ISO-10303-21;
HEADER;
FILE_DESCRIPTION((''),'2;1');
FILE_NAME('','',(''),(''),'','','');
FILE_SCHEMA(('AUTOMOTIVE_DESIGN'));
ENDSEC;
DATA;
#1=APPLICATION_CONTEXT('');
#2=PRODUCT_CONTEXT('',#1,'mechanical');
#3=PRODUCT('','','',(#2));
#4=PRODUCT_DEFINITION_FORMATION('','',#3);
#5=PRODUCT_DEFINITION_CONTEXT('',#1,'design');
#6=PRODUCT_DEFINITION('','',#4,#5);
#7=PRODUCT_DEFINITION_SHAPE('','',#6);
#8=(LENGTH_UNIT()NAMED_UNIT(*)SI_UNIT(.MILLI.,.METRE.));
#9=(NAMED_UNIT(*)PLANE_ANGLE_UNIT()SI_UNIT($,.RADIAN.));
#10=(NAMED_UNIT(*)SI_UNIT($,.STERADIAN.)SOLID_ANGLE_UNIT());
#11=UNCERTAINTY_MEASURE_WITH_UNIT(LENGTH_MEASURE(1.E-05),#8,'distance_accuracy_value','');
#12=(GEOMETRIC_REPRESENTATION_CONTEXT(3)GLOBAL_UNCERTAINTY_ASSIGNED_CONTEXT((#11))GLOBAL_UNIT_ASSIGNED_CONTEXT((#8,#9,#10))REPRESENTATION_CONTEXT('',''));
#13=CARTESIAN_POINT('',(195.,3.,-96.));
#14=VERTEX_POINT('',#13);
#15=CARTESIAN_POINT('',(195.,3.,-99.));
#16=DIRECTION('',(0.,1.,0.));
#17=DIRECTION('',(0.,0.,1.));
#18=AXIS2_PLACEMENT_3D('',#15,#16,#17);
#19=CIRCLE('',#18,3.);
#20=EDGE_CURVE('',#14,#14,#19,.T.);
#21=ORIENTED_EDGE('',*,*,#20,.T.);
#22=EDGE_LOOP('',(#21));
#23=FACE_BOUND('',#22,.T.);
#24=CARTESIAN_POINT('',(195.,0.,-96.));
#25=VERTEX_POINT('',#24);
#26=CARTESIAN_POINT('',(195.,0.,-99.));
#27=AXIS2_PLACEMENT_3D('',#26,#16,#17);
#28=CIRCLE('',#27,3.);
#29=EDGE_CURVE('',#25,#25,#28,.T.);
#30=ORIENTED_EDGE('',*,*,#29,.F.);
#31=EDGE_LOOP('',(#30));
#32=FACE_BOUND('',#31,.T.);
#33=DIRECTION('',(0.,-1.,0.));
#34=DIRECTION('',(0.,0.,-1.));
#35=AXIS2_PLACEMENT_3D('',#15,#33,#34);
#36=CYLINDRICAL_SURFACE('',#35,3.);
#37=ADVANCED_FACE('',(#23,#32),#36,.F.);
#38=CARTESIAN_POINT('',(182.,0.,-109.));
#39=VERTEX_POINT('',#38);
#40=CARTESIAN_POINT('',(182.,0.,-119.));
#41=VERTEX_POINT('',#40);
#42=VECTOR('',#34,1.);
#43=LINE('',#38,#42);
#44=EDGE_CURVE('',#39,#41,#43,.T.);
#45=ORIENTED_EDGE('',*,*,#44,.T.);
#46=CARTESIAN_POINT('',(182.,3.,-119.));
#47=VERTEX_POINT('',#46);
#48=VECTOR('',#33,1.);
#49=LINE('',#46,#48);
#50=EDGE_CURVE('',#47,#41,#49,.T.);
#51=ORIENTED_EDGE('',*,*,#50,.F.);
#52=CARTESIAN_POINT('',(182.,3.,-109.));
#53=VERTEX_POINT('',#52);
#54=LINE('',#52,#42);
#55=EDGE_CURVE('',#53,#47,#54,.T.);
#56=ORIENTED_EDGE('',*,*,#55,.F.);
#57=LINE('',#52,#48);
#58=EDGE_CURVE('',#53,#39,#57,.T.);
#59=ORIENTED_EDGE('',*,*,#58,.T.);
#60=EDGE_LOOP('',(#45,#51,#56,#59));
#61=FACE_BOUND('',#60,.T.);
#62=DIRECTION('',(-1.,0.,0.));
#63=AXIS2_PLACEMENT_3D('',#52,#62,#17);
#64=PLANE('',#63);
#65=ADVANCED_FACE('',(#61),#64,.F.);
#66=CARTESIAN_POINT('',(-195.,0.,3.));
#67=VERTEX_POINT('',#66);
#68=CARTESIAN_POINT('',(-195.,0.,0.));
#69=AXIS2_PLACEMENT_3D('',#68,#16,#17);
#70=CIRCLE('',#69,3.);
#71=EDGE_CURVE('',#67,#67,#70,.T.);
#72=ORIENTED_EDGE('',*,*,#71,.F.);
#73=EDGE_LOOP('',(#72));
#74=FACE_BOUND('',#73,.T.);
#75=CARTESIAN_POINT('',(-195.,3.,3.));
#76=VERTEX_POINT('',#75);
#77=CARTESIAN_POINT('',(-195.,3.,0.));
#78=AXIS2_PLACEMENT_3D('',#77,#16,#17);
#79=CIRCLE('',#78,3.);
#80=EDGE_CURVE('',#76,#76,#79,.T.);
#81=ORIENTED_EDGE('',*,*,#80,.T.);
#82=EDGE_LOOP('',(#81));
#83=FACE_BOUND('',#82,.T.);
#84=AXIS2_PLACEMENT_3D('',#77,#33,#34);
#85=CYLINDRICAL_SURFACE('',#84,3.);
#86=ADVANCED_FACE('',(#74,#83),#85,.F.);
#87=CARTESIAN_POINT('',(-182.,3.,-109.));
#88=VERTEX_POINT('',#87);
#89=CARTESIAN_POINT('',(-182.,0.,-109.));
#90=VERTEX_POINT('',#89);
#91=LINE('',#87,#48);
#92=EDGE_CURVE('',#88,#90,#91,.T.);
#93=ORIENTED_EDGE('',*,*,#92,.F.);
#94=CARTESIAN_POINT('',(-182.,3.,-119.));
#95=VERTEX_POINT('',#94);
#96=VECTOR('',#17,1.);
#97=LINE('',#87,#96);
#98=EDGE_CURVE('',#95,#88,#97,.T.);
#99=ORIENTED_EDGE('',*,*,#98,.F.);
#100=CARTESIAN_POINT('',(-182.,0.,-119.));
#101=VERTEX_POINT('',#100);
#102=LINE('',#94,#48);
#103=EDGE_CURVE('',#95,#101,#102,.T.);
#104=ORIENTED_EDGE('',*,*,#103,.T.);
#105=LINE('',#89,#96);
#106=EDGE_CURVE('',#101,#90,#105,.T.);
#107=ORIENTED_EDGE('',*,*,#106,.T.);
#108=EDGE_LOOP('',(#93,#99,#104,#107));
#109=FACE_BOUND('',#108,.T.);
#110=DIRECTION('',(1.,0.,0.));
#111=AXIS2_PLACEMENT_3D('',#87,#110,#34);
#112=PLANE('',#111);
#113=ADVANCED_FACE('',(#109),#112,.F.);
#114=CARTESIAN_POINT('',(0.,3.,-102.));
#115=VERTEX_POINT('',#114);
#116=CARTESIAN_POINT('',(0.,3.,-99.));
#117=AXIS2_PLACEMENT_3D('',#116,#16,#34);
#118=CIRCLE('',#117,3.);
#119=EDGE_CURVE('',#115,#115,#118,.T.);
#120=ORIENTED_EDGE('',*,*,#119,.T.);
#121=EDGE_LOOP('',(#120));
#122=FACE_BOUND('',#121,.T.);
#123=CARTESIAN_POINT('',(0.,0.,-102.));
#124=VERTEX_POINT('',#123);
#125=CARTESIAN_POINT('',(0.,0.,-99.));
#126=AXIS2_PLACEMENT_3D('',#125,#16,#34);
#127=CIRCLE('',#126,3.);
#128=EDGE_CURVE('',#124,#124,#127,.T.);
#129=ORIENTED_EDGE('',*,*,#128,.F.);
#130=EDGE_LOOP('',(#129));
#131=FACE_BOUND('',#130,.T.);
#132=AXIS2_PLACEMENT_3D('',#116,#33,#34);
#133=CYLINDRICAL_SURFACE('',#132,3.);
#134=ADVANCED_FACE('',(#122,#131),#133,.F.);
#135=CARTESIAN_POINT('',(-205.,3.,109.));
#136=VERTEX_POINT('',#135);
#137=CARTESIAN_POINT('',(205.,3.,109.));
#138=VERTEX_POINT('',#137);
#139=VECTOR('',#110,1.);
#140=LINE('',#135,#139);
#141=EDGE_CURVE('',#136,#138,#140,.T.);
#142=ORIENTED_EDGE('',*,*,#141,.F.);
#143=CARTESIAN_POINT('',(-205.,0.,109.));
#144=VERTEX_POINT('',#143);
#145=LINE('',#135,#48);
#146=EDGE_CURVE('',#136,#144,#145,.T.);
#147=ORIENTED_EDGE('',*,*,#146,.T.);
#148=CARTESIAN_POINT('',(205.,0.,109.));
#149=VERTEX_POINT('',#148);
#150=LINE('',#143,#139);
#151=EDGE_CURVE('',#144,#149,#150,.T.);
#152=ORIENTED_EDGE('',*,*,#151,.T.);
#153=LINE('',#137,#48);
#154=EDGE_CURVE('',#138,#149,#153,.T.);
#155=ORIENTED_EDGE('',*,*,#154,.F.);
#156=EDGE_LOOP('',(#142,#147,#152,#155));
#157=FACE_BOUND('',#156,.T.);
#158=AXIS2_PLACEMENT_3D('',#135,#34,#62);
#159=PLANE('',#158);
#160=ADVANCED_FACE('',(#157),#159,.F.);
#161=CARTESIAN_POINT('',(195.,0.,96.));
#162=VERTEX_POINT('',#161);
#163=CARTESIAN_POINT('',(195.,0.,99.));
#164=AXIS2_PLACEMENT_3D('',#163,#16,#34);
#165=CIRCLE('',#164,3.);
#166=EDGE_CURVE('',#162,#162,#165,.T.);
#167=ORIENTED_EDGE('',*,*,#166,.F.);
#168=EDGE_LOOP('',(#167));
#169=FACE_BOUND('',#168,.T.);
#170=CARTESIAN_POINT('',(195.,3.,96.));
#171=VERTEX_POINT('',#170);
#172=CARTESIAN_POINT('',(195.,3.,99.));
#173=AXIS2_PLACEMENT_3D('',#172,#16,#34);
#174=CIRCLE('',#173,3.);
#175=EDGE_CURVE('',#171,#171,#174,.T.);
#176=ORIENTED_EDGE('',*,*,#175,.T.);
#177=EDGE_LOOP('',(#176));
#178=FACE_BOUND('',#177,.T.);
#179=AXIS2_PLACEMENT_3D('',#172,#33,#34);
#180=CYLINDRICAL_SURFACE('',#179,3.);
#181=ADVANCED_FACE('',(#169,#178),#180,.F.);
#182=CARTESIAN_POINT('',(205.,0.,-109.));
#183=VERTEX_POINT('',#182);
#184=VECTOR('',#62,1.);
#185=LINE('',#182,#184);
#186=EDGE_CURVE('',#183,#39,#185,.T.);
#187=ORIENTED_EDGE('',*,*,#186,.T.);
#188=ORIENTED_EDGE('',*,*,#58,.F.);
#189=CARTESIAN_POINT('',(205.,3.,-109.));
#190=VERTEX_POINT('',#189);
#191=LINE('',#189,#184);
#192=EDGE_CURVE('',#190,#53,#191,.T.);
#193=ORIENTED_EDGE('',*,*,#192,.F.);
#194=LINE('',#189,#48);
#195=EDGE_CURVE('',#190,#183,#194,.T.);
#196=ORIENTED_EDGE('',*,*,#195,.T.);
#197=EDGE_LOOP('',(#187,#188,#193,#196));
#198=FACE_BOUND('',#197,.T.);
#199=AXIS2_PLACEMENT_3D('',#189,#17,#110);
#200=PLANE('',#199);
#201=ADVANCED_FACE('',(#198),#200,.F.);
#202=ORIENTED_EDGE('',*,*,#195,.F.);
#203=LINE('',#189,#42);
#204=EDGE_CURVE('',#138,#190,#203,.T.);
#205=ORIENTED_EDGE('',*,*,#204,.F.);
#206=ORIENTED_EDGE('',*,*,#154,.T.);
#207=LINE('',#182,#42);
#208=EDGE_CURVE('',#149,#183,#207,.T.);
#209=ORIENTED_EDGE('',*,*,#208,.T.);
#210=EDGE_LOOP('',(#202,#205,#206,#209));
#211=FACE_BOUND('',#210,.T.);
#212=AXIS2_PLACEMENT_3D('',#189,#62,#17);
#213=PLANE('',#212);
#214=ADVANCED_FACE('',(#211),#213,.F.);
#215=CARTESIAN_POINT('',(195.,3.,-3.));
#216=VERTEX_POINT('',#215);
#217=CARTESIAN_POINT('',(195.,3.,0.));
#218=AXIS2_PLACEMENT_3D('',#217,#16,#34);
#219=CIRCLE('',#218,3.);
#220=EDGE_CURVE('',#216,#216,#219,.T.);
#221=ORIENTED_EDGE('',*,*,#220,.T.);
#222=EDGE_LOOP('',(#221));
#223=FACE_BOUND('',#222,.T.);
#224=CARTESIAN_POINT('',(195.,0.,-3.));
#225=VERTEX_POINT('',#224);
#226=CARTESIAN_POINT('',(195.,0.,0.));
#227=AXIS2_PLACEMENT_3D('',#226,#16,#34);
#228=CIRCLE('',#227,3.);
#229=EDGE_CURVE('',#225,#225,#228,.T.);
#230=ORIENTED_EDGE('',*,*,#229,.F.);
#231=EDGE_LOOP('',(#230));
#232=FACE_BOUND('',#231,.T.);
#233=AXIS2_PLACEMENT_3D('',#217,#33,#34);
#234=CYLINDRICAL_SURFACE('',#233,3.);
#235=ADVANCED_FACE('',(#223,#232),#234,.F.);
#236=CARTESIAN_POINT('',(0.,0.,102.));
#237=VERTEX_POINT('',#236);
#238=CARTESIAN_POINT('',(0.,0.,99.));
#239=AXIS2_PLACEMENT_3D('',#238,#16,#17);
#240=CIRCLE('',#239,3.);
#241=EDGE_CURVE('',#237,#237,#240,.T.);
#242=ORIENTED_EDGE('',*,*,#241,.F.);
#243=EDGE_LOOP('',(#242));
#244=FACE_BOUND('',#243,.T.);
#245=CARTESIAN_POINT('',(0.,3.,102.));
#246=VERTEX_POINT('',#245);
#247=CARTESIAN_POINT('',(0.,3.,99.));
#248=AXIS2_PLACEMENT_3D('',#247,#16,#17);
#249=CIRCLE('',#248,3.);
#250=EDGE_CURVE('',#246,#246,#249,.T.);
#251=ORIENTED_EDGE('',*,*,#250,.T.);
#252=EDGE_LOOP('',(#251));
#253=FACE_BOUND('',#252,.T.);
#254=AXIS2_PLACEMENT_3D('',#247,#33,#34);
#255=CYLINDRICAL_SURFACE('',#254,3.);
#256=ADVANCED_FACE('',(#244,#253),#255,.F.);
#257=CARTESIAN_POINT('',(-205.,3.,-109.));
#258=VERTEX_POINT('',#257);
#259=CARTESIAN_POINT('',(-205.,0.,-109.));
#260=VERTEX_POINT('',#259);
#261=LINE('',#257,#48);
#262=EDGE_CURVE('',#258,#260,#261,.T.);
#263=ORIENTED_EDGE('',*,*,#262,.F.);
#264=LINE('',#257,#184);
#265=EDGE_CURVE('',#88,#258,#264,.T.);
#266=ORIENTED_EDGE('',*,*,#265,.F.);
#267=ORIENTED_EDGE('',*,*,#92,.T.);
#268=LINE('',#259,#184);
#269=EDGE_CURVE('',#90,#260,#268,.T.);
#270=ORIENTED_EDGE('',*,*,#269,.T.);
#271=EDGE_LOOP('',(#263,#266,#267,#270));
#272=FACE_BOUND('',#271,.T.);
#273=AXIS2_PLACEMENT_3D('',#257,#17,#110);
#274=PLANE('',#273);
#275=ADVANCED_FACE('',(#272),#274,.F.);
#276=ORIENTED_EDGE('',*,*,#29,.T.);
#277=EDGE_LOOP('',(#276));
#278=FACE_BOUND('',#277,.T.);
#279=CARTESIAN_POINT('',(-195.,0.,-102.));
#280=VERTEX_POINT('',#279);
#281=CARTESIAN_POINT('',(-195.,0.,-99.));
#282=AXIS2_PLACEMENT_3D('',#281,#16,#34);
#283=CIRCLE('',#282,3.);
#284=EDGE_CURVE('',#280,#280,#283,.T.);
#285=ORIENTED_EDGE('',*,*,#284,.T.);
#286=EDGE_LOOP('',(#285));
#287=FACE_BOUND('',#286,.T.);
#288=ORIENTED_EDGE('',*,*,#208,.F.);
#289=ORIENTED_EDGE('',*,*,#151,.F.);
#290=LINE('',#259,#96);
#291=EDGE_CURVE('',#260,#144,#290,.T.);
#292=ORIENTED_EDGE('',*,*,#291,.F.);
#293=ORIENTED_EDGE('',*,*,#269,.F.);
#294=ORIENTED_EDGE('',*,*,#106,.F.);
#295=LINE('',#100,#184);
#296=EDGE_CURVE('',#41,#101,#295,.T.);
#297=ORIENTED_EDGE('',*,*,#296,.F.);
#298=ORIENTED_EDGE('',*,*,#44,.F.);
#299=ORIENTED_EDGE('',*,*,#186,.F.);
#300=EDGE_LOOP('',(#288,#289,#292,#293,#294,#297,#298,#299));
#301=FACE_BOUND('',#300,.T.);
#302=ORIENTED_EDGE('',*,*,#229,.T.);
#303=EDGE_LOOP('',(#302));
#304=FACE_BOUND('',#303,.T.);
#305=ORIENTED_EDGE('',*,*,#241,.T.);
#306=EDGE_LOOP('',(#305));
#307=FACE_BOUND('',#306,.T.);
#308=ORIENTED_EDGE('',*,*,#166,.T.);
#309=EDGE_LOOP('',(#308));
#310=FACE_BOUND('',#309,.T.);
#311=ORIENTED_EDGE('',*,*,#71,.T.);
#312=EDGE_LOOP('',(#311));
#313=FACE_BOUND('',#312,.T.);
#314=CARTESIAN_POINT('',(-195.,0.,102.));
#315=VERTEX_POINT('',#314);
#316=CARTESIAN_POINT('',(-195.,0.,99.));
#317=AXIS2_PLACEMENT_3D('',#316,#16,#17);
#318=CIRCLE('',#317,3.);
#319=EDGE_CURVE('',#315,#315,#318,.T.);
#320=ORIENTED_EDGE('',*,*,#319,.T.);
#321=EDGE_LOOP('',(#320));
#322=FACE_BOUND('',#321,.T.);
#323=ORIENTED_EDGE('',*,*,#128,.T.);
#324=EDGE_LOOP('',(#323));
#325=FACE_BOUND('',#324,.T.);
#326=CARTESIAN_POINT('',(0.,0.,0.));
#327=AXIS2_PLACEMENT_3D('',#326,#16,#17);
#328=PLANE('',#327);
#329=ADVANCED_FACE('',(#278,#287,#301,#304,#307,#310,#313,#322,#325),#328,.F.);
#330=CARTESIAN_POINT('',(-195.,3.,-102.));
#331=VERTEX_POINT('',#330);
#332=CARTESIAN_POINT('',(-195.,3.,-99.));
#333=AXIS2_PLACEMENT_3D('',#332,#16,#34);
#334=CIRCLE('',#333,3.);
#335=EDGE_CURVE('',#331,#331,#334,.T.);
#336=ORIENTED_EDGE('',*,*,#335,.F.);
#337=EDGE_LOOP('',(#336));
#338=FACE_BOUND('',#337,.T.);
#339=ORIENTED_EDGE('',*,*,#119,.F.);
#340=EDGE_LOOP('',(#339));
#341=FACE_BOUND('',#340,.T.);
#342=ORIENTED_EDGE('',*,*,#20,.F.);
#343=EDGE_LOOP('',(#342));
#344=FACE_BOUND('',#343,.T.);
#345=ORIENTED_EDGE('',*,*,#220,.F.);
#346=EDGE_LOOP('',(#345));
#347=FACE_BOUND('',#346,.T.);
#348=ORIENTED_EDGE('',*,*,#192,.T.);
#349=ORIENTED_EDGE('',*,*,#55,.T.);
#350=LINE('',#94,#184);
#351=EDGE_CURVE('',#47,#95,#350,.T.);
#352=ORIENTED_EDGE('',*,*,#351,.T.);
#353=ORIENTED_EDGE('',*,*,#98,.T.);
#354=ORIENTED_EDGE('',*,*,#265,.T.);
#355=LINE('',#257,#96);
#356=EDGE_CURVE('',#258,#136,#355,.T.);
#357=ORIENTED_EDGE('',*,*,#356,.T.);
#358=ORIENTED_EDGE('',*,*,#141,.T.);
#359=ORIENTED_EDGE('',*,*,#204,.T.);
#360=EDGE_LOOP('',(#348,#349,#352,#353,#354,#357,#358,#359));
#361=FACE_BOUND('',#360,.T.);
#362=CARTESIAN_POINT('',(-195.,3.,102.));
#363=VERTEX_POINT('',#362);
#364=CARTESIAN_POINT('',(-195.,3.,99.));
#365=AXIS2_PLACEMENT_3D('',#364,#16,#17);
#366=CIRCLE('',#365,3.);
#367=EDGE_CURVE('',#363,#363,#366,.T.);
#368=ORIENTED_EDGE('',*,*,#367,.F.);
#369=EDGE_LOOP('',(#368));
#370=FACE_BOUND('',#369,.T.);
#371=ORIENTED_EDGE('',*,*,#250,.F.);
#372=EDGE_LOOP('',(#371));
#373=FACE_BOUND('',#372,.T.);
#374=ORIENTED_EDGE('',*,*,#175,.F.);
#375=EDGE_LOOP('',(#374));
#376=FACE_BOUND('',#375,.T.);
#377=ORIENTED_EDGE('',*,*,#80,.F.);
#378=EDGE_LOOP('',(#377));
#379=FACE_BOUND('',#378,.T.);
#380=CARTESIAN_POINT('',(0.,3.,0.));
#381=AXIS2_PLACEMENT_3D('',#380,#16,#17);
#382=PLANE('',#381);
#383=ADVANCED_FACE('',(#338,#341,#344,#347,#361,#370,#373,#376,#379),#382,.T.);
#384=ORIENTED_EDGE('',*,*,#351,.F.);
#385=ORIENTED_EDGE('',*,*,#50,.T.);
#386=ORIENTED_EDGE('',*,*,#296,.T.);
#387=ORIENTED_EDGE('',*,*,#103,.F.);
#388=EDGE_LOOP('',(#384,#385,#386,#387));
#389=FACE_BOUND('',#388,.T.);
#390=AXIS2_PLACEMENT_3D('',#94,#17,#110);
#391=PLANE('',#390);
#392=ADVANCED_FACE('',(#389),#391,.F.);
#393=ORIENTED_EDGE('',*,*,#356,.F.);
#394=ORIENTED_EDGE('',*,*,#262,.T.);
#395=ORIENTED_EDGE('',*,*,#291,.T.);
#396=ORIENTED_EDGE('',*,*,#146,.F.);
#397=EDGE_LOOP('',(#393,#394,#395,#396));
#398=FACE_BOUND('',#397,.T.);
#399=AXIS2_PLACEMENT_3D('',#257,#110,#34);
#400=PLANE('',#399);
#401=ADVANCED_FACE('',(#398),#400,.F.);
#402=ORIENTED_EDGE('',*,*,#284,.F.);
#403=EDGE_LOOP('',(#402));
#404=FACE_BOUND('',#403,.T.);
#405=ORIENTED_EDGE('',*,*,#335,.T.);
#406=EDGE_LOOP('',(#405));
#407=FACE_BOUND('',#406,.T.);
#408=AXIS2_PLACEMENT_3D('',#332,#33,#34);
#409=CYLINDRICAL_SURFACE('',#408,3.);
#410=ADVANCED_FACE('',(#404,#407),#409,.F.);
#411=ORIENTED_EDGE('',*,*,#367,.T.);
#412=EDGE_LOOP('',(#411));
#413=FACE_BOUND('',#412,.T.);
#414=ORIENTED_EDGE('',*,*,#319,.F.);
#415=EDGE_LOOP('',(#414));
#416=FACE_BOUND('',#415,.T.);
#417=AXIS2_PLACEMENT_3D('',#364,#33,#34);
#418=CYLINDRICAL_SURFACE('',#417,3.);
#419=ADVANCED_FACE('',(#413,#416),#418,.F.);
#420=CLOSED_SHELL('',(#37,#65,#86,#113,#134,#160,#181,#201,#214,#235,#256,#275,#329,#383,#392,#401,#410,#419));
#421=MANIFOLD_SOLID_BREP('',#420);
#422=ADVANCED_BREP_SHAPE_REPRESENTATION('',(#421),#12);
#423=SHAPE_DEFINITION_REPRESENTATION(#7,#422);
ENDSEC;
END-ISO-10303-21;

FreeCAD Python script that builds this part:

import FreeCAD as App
import Part
import Sketcher
from FreeCAD import Vector

doc = App.newDocument("Part")
params = doc.addObject("Spreadsheet::Sheet", "Params")
for row, (alias, value) in enumerate([
    ("sketch1_diameter", "6 mm"),
    ("sketch1_width", "23 mm"),
    ("sketch1_width2", "410 mm"),
    ("sketch1_height", "10 mm"),
    ("sketch1_height2", "218 mm"),
    ("pad1_length", "3 mm"),
], start=1):
    params.set(f"A{row}", alias)
    params.set(f"B{row}", "=" + value)
    params.setAlias(f"B{row}", alias)

body = doc.addObject("PartDesign::Body", "Body")

sketch1 = doc.addObject("Sketcher::SketchObject", "Sketch")
body.addObject(sketch1)
sketch1.AttachmentSupport = (doc.XZ_Plane, [""])
sketch1.MapMode = "FlatFace"
sketch1.addGeometry(Part.LineSegment(Vector(-182, -119, 0), Vector(-182, -109, 0)), False)
sketch1.addGeometry(Part.LineSegment(Vector(-182, -109, 0), Vector(-205, -109, 0)), False)
sketch1.addGeometry(Part.LineSegment(Vector(-205, -109, 0), Vector(-205, 109, 0)), False)
sketch1.addGeometry(Part.LineSegment(Vector(-205, 109, 0), Vector(205, 109, 0)), False)
sketch1.addGeometry(Part.LineSegment(Vector(205, 109, 0), Vector(205, -109, 0)), False)
sketch1.addGeometry(Part.LineSegment(Vector(205, -109, 0), Vector(182, -109, 0)), False)
sketch1.addGeometry(Part.LineSegment(Vector(182, -109, 0), Vector(182, -119, 0)), False)
sketch1.addGeometry(Part.LineSegment(Vector(182, -119, 0), Vector(-182, -119, 0)), False)
sketch1.addGeometry(Part.Circle(Vector(195, 99, 0), Vector(0, 0, 1), 3), False)
sketch1.addGeometry(Part.Circle(Vector(0, 99, 0), Vector(0, 0, 1), 3), False)
sketch1.addGeometry(Part.Circle(Vector(-195, 99, 0), Vector(0, 0, 1), 3), False)
sketch1.addGeometry(Part.Circle(Vector(195, 0, 0), Vector(0, 0, 1), 3), False)
sketch1.addGeometry(Part.Circle(Vector(195, -99, 0), Vector(0, 0, 1), 3), False)
sketch1.addGeometry(Part.Circle(Vector(-195, 0, 0), Vector(0, 0, 1), 3), False)
sketch1.addGeometry(Part.Circle(Vector(0, -99, 0), Vector(0, 0, 1), 3), False)
sketch1.addGeometry(Part.Circle(Vector(-195, -99, 0), Vector(0, 0, 1), 3), False)
sketch1.addConstraint(Sketcher.Constraint("Coincident", 0, 2, 1, 1))
sketch1.addConstraint(Sketcher.Constraint("Coincident", 1, 2, 2, 1))
sketch1.addConstraint(Sketcher.Constraint("Coincident", 2, 2, 3, 1))
sketch1.addConstraint(Sketcher.Constraint("Coincident", 3, 2, 4, 1))
sketch1.addConstraint(Sketcher.Constraint("Coincident", 4, 2, 5, 1))
sketch1.addConstraint(Sketcher.Constraint("Coincident", 5, 2, 6, 1))
sketch1.addConstraint(Sketcher.Constraint("Coincident", 6, 2, 7, 1))
sketch1.addConstraint(Sketcher.Constraint("Coincident", 7, 2, 0, 1))
sketch1.addConstraint(Sketcher.Constraint("Vertical", 0))
sketch1.addConstraint(Sketcher.Constraint("Horizontal", 1))
sketch1.addConstraint(Sketcher.Constraint("Vertical", 2))
sketch1.addConstraint(Sketcher.Constraint("Horizontal", 3))
sketch1.addConstraint(Sketcher.Constraint("Vertical", 4))
sketch1.addConstraint(Sketcher.Constraint("Horizontal", 5))
sketch1.addConstraint(Sketcher.Constraint("Vertical", 6))
sketch1.addConstraint(Sketcher.Constraint("Horizontal", 7))
sketch1.addConstraint(Sketcher.Constraint("Equal", 8, 9))
sketch1.addConstraint(Sketcher.Constraint("Equal", 9, 10))
sketch1.addConstraint(Sketcher.Constraint("Equal", 10, 11))
sketch1.addConstraint(Sketcher.Constraint("Equal", 11, 12))
sketch1.addConstraint(Sketcher.Constraint("Equal", 12, 13))
sketch1.addConstraint(Sketcher.Constraint("Equal", 13, 14))
sketch1.addConstraint(Sketcher.Constraint("Equal", 14, 15))
sketch1.addConstraint(Sketcher.Constraint("Symmetric", 10, 3, 12, 3, -1, 1))
sketch1.addConstraint(Sketcher.Constraint("Symmetric", 11, 3, 13, 3, -1, 1))
sketch1.addConstraint(Sketcher.Constraint("Symmetric", 9, 3, 14, 3, -1, 1))
sketch1.addConstraint(Sketcher.Constraint("Symmetric", 8, 3, 15, 3, -1, 1))
sketch1.addConstraint(Sketcher.Constraint("Symmetric", 1, 2, 3, 2, -1, 1))
sketch1.addConstraint(Sketcher.Constraint("Symmetric", 8, 3, 10, 3, -2))
sketch1.addConstraint(Sketcher.Constraint("Symmetric", 0, 2, 5, 2, -2))
sketch1.addConstraint(Sketcher.Constraint("PointOnObject", 9, 3, -2))
sketch1.addConstraint(Sketcher.Constraint("PointOnObject", 11, 3, -1))
sketch1.addConstraint(Sketcher.Constraint("Horizontal", 8, 3, 9, 3))
sketch1.addConstraint(Sketcher.Constraint("Vertical", 8, 3, 11, 3))
sketch1.addConstraint(Sketcher.Constraint("Diameter", 8, 6.0))
sketch1.addConstraint(Sketcher.Constraint("DistanceX", 1, 2, 1, 1, 23.0))
sketch1.addConstraint(Sketcher.Constraint("DistanceX", 3, 1, 3, 2, 410.0))
sketch1.addConstraint(Sketcher.Constraint("DistanceY", 0, 1, 0, 2, 10.0))
sketch1.addConstraint(Sketcher.Constraint("DistanceY", 2, 1, 2, 2, 218.0))
sketch1.addConstraint(Sketcher.Constraint("DistanceX", -1, 1, 8, 3, 195.0))
sketch1.addConstraint(Sketcher.Constraint("DistanceY", -1, 1, 8, 3, 99.0))
sketch1.setExpression("Constraints[34]", "Params.sketch1_diameter")
sketch1.setExpression("Constraints[35]", "Params.sketch1_width")
sketch1.setExpression("Constraints[36]", "Params.sketch1_width2")
sketch1.setExpression("Constraints[37]", "Params.sketch1_height")
sketch1.setExpression("Constraints[38]", "Params.sketch1_height2")
pad1 = doc.addObject("PartDesign::Pad", "Pad")
body.addObject(pad1)
pad1.Profile = sketch1
pad1.setExpression("Length", "Params.pad1_length")
pad1.Reversed = True

doc.recompute()
